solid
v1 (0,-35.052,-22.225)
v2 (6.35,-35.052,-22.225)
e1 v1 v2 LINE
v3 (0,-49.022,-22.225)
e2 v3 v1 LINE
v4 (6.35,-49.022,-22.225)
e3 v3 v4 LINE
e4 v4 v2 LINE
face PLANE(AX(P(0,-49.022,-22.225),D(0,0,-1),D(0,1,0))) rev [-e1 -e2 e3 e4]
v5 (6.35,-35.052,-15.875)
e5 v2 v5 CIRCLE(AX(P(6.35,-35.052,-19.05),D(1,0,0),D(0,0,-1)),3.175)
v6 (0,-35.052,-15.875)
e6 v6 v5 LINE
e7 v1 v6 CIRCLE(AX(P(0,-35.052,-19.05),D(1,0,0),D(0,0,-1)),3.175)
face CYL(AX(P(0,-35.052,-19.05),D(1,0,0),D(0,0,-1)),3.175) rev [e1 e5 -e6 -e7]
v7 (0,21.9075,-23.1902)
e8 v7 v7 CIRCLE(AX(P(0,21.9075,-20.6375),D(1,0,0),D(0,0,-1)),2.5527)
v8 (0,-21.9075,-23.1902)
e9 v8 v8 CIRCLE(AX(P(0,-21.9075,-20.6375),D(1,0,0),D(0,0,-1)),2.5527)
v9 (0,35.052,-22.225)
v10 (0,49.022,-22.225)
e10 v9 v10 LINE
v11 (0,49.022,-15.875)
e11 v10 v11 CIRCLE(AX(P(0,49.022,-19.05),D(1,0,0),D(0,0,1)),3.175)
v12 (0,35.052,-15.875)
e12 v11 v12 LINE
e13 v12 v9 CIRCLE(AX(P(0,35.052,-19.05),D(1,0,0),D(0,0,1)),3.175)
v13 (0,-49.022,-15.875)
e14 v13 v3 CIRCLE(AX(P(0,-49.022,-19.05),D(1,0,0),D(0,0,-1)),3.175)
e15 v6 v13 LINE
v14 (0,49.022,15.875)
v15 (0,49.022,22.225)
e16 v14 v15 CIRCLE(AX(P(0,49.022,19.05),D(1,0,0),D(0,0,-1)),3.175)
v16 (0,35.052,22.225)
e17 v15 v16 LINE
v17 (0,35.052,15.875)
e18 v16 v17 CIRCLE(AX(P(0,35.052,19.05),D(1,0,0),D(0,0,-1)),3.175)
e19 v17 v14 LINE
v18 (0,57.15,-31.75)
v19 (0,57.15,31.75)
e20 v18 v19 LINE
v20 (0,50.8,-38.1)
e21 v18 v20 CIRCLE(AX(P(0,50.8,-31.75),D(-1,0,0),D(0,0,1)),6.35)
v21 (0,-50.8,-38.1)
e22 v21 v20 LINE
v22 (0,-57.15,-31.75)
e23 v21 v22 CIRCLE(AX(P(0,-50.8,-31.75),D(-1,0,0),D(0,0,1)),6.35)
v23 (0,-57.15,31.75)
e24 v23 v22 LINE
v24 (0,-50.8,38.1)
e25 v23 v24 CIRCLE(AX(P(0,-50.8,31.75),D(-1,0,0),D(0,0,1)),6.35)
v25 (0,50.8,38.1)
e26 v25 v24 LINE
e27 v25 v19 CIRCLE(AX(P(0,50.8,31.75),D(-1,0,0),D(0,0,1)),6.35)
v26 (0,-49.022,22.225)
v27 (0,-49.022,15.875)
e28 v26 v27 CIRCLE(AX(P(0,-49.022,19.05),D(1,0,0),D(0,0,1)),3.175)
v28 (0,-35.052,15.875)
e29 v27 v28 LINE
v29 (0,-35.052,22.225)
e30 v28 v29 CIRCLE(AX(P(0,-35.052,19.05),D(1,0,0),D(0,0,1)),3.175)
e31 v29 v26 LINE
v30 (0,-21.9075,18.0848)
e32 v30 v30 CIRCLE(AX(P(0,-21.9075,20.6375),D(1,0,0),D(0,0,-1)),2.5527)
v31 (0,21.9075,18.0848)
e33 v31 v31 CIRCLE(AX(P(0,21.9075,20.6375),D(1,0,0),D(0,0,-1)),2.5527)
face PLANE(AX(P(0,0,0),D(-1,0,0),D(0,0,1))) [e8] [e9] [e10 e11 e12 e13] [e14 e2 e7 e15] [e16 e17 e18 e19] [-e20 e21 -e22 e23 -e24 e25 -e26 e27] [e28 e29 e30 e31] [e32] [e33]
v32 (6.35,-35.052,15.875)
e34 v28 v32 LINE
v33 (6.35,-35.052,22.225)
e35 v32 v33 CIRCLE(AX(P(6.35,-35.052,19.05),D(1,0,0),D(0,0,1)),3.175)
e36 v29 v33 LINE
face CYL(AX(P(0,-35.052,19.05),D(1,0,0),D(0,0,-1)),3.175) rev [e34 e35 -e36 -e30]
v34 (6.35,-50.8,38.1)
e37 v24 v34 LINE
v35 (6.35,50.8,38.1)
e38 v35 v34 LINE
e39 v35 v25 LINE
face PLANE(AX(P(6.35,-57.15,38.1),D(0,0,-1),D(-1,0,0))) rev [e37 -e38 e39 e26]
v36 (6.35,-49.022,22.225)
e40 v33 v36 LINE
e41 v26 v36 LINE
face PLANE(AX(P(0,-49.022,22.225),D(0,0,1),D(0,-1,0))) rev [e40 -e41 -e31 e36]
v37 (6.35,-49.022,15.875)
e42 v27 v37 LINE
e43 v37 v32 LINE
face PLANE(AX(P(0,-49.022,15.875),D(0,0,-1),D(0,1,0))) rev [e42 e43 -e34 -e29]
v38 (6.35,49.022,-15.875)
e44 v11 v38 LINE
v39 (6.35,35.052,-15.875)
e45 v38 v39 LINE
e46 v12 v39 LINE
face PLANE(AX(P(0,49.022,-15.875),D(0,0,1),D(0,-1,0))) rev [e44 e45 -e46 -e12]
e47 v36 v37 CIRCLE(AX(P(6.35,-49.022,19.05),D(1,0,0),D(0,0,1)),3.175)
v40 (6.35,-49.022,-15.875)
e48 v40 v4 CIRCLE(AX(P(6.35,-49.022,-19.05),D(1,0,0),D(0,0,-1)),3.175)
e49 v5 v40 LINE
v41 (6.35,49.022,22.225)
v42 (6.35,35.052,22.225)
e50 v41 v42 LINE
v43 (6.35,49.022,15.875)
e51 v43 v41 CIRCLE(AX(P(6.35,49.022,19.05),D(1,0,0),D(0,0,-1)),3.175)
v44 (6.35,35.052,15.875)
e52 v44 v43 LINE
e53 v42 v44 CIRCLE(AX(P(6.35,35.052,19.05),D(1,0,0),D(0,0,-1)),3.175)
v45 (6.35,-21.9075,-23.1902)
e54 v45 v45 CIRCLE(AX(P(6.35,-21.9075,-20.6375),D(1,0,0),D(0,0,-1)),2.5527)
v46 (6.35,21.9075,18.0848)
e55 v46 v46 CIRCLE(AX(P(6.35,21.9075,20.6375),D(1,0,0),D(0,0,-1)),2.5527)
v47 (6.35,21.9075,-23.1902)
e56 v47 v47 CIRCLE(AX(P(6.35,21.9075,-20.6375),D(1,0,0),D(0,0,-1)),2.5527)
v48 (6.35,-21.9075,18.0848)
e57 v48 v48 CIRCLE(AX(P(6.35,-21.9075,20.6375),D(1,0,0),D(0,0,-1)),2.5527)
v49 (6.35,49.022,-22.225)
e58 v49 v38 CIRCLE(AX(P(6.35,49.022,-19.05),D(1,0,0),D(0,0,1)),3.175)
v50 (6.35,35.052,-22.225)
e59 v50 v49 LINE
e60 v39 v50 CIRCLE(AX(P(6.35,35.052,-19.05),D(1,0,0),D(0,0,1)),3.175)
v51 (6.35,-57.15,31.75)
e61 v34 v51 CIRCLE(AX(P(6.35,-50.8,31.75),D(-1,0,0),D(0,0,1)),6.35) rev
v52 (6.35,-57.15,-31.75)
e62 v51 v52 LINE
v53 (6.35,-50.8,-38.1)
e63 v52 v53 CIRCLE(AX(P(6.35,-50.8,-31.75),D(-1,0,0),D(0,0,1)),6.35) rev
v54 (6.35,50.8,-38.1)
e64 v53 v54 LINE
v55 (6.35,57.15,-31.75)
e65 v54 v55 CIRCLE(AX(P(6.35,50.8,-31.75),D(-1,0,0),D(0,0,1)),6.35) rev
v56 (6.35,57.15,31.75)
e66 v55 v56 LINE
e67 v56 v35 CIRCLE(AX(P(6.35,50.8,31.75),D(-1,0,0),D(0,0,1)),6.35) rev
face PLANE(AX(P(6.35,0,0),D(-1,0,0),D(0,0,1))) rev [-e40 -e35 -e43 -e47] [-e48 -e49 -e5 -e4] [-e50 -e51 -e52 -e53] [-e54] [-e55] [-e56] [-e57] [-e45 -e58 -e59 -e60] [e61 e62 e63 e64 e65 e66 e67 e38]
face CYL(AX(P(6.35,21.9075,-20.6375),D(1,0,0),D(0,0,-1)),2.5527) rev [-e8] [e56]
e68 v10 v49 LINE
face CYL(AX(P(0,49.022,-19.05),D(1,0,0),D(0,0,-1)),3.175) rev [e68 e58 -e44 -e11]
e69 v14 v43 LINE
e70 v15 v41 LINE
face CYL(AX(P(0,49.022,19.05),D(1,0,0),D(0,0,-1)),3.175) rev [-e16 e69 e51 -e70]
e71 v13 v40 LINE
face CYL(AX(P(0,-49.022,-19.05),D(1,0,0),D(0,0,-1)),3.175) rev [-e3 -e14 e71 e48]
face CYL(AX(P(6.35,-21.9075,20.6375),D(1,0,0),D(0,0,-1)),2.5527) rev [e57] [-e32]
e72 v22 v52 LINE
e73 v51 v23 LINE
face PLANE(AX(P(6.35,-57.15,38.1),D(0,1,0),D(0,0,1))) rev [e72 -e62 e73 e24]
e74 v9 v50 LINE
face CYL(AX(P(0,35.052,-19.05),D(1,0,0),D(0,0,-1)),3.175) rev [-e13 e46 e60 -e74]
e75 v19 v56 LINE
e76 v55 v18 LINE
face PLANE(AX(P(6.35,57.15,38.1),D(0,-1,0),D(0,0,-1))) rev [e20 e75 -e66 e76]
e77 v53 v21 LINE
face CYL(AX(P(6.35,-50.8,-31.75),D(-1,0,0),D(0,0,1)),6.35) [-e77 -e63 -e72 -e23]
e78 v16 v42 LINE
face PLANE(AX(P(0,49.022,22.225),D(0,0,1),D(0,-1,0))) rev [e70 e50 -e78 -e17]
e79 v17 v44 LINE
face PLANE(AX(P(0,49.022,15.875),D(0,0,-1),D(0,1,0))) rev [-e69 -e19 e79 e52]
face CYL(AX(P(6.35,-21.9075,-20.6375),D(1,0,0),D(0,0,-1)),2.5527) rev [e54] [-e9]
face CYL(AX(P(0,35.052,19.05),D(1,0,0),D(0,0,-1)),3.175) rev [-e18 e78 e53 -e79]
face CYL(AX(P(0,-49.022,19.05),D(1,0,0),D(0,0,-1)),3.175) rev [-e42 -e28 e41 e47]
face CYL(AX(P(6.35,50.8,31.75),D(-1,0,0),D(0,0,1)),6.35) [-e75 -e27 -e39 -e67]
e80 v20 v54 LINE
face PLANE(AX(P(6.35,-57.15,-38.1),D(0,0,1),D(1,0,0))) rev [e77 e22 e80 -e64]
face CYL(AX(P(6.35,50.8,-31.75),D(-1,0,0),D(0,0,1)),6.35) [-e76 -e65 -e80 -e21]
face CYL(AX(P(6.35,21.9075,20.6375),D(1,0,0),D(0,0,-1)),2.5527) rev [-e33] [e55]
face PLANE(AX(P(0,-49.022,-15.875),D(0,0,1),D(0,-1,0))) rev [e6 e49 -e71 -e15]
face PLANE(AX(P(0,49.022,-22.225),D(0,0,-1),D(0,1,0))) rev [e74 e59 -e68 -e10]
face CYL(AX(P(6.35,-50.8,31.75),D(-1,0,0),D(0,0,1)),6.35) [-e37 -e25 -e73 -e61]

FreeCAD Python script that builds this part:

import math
import FreeCAD as App
import Part
import Sketcher
from FreeCAD import Vector
Q = App.Units.Quantity


def edges_at(feature, points):
    """Names of the edges that pass closest to the given points."""
    edges = feature.Shape.Edges
    near = lambda p: min(range(len(edges)), key=lambda i: edges[i].distToShape(Part.Vertex(*p))[0])
    return sorted({f"Edge{near(p) + 1}" for p in points})


def add_polygon(sketch, points):
    """Adds a closed chain of lines whose ends are joined by coincident constraints."""
    first, n = sketch.GeometryCount, len(points)
    for a, b in zip(points, points[1:] + points[:1]):
        sketch.addGeometry(Part.LineSegment(App.Vector(*a, 0), App.Vector(*b, 0)), False)
    for i in range(n):
        sketch.addConstraint(Sketcher.Constraint("Coincident", first + i, 2, first + (i + 1) % n, 1))

doc = App.newDocument("Part")
body = doc.addObject("PartDesign::Body", "Body")

sketch1 = body.newObject("Sketcher::SketchObject", "Sketch")
sketch1.AttachmentSupport = (doc.getObject("YZ_Plane"), [""])
sketch1.MapMode = "FlatFace"
add_polygon(sketch1, [(57, 38), (-57, 38), (-57, -38), (57, -38)])
sketch1.addConstraint(Sketcher.Constraint("Horizontal", 0))
sketch1.addConstraint(Sketcher.Constraint("Vertical", 1))
sketch1.addConstraint(Sketcher.Constraint("Horizontal", 2))
sketch1.addConstraint(Sketcher.Constraint("Vertical", 3))
sketch1.addConstraint(Sketcher.Constraint("Symmetric", 0, 2, 2, 2, -1, 1))
sketch1.addConstraint(Sketcher.Constraint("DistanceY", 1, 2, 1, 1, Q("3 in")))
sketch1.addConstraint(Sketcher.Constraint("DistanceX", 0, 2, 0, 1, Q("4.5 in")))
pad1 = body.newObject("PartDesign::Pad", "Pad")
pad1.Profile = sketch1
pad1.Length = Q("0.25 in")

sketch2 = body.newObject("Sketcher::SketchObject", "Sketch001")
sketch2.AttachmentSupport = (doc.getObject("YZ_Plane"), [""])
sketch2.MapMode = "FlatFace"
sketch2.AttachmentOffset = App.Placement(Vector(0, 0, 0.25 * 25.4), App.Rotation())
sketch2.addGeometry(Part.Circle(Vector(21.9, 20.6, 0), Vector(0, 0, 1), 2.6), False)
sketch2.addGeometry(Part.Circle(Vector(21.9, -20.6, 0), Vector(0, 0, 1), 2.6), False)
sketch2.addGeometry(Part.Circle(Vector(-21.9, -20.6, 0), Vector(0, 0, 1), 2.6), False)
sketch2.addGeometry(Part.Circle(Vector(-21.9, 20.6, 0), Vector(0, 0, 1), 2.6), False)
sketch2.addConstraint(Sketcher.Constraint("Equal", 0, 1))
sketch2.addConstraint(Sketcher.Constraint("Equal", 1, 2))
sketch2.addConstraint(Sketcher.Constraint("Equal", 2, 3))
sketch2.addConstraint(Sketcher.Constraint("Symmetric", 0, 3, 2, 3, -1, 1))
sketch2.addConstraint(Sketcher.Constraint("Symmetric", 1, 3, 3, 3, -1, 1))
sketch2.addConstraint(Sketcher.Constraint("Symmetric", 1, 3, 2, 3, -2))
sketch2.addConstraint(Sketcher.Constraint("Diameter", 0, Q("0.201 in")))
sketch2.addConstraint(Sketcher.Constraint("DistanceY", -1, 1, 0, 3, Q("0.8125 in")))
sketch2.addConstraint(Sketcher.Constraint("DistanceX", 2, 3, 1, 3, Q("1.725 in")))
doc.recompute()
hole = body.newObject("PartDesign::Hole", "Hole")
hole.Profile = sketch2
hole.ThreadType = "None"
hole.Diameter = Q("0.201 in")
hole.DepthType = "ThroughAll"

sketch3 = body.newObject("Sketcher::SketchObject", "Sketch002")
sketch3.AttachmentSupport = (doc.getObject("YZ_Plane"), [""])
sketch3.MapMode = "FlatFace"
sketch3.AttachmentOffset = App.Placement(Vector(0, 0, 0.25 * 25.4), App.Rotation())
sketch3.addGeometry(Part.LineSegment(Vector(49, -15.9, 0), Vector(35.1, -15.9, 0)), False)
sketch3.addGeometry(Part.ArcOfCircle(Part.Circle(Vector(35.1, -19.1, 0), Vector(0, 0, 1), 3.2), math.radians(90), math.radians(270)), False)
sketch3.addGeometry(Part.LineSegment(Vector(35.1, -22.2, 0), Vector(49, -22.2, 0)), False)
sketch3.addGeometry(Part.ArcOfCircle(Part.Circle(Vector(49, -19.1, 0), Vector(0, 0, 1), 3.2), math.radians(-90), math.radians(90)), False)
sketch3.addGeometry(Part.LineSegment(Vector(49, 22.2, 0), Vector(35.1, 22.2, 0)), False)
sketch3.addGeometry(Part.ArcOfCircle(Part.Circle(Vector(35.1, 19.1, 0), Vector(0, 0, 1), 3.2), math.radians(90), math.radians(270)), False)
sketch3.addGeometry(Part.LineSegment(Vector(35.1, 15.9, 0), Vector(49, 15.9, 0)), False)
sketch3.addGeometry(Part.ArcOfCircle(Part.Circle(Vector(49, 19.1, 0), Vector(0, 0, 1), 3.2), math.radians(-90), math.radians(90)), False)
sketch3.addGeometry(Part.LineSegment(Vector(-49, 15.9, 0), Vector(-35.1, 15.9, 0)), False)
sketch3.addGeometry(Part.ArcOfCircle(Part.Circle(Vector(-35.1, 19.1, 0), Vector(0, 0, 1), 3.2), math.radians(-90), math.radians(90)), False)
sketch3.addGeometry(Part.LineSegment(Vector(-35.1, 22.2, 0), Vector(-49, 22.2, 0)), False)
sketch3.addGeometry(Part.ArcOfCircle(Part.Circle(Vector(-49, 19.1, 0), Vector(0, 0, 1), 3.2), math.radians(90), math.radians(270)), False)
sketch3.addGeometry(Part.LineSegment(Vector(-49, -22.2, 0), Vector(-35.1, -22.2, 0)), False)
sketch3.addGeometry(Part.ArcOfCircle(Part.Circle(Vector(-35.1, -19.1, 0), Vector(0, 0, 1), 3.2), math.radians(-90), math.radians(90)), False)
sketch3.addGeometry(Part.LineSegment(Vector(-35.1, -15.9, 0), Vector(-49, -15.9, 0)), False)
sketch3.addGeometry(Part.ArcOfCircle(Part.Circle(Vector(-49, -19.1, 0), Vector(0, 0, 1), 3.2), math.radians(90), math.radians(270)), False)
sketch3.addConstraint(Sketcher.Constraint("Tangent", 0, 2, 1, 1))
sketch3.addConstraint(Sketcher.Constraint("Tangent", 1, 2, 2, 1))
sketch3.addConstraint(Sketcher.Constraint("Tangent", 2, 2, 3, 1))
sketch3.addConstraint(Sketcher.Constraint("Tangent", 3, 2, 0, 1))
sketch3.addConstraint(Sketcher.Constraint("Tangent", 4, 2, 5, 1))
sketch3.addConstraint(Sketcher.Constraint("Tangent", 5, 2, 6, 1))
sketch3.addConstraint(Sketcher.Constraint("Tangent", 6, 2, 7, 1))
sketch3.addConstraint(Sketcher.Constraint("Tangent", 7, 2, 4, 1))
sketch3.addConstraint(Sketcher.Constraint("Tangent", 8, 2, 9, 1))
sketch3.addConstraint(Sketcher.Constraint("Tangent", 9, 2, 10, 1))
sketch3.addConstraint(Sketcher.Constraint("Tangent", 10, 2, 11, 1))
sketch3.addConstraint(Sketcher.Constraint("Tangent", 11, 2, 8, 1))
sketch3.addConstraint(Sketcher.Constraint("Tangent", 12, 2, 13, 1))
sketch3.addConstraint(Sketcher.Constraint("Tangent", 13, 2, 14, 1))
sketch3.addConstraint(Sketcher.Constraint("Tangent", 14, 2, 15, 1))
sketch3.addConstraint(Sketcher.Constraint("Tangent", 15, 2, 12, 1))
sketch3.addConstraint(Sketcher.Constraint("Horizontal", 0))
sketch3.addConstraint(Sketcher.Constraint("Horizontal", 2))
sketch3.addConstraint(Sketcher.Constraint("Horizontal", 4))
sketch3.addConstraint(Sketcher.Constraint("Horizontal", 6))
sketch3.addConstraint(Sketcher.Constraint("Horizontal", 8))
sketch3.addConstraint(Sketcher.Constraint("Horizontal", 10))
sketch3.addConstraint(Sketcher.Constraint("Horizontal", 12))
sketch3.addConstraint(Sketcher.Constraint("Horizontal", 14))
sketch3.addConstraint(Sketcher.Constraint("Equal", 3, 5))
sketch3.addConstraint(Sketcher.Constraint("Equal", 7, 9))
sketch3.addConstraint(Sketcher.Constraint("Equal", 11, 13))
sketch3.addConstraint(Sketcher.Constraint("Symmetric", 1, 3, 9, 3, -1, 1))
sketch3.addConstraint(Sketcher.Constraint("Symmetric", 5, 3, 13, 3, -1, 1))
sketch3.addConstraint(Sketcher.Constraint("Symmetric", 5, 3, 9, 3, -2))
sketch3.addConstraint(Sketcher.Constraint("Vertical", 3, 3, 7, 3))
sketch3.addConstraint(Sketcher.Constraint("Vertical", 11, 3, 15, 3))
sketch3.addConstraint(Sketcher.Constraint("Equal", 6, 8))
sketch3.addConstraint(Sketcher.Constraint("Radius", 1, Q("0.125 in")))
sketch3.addConstraint(Sketcher.Constraint("DistanceX", 0, 2, 0, 1, Q("0.55 in")))
sketch3.addConstraint(Sketcher.Constraint("DistanceY", 1, 3, 5, 3, Q("1.5 in")))
sketch3.addConstraint(Sketcher.Constraint("DistanceX", -1, 1, 1, 3, Q("1.38 in")))
pocket1 = body.newObject("PartDesign::Pocket", "Pocket")
pocket1.Profile = sketch3
pocket1.Type = "ThroughAll"
doc.recompute()

fillet = body.newObject("PartDesign::Fillet", "Fillet")
fillet.Base = (pocket1, edges_at(pocket1, [
    (3.175, -57.15, -38.1),
    (3.175, -57.15, 38.1),
    (3.175, 57.15, 38.1),
    (3.175, 57.15, -38.1),
]))
fillet.Radius = Q("0.25 in")

doc.recompute()
